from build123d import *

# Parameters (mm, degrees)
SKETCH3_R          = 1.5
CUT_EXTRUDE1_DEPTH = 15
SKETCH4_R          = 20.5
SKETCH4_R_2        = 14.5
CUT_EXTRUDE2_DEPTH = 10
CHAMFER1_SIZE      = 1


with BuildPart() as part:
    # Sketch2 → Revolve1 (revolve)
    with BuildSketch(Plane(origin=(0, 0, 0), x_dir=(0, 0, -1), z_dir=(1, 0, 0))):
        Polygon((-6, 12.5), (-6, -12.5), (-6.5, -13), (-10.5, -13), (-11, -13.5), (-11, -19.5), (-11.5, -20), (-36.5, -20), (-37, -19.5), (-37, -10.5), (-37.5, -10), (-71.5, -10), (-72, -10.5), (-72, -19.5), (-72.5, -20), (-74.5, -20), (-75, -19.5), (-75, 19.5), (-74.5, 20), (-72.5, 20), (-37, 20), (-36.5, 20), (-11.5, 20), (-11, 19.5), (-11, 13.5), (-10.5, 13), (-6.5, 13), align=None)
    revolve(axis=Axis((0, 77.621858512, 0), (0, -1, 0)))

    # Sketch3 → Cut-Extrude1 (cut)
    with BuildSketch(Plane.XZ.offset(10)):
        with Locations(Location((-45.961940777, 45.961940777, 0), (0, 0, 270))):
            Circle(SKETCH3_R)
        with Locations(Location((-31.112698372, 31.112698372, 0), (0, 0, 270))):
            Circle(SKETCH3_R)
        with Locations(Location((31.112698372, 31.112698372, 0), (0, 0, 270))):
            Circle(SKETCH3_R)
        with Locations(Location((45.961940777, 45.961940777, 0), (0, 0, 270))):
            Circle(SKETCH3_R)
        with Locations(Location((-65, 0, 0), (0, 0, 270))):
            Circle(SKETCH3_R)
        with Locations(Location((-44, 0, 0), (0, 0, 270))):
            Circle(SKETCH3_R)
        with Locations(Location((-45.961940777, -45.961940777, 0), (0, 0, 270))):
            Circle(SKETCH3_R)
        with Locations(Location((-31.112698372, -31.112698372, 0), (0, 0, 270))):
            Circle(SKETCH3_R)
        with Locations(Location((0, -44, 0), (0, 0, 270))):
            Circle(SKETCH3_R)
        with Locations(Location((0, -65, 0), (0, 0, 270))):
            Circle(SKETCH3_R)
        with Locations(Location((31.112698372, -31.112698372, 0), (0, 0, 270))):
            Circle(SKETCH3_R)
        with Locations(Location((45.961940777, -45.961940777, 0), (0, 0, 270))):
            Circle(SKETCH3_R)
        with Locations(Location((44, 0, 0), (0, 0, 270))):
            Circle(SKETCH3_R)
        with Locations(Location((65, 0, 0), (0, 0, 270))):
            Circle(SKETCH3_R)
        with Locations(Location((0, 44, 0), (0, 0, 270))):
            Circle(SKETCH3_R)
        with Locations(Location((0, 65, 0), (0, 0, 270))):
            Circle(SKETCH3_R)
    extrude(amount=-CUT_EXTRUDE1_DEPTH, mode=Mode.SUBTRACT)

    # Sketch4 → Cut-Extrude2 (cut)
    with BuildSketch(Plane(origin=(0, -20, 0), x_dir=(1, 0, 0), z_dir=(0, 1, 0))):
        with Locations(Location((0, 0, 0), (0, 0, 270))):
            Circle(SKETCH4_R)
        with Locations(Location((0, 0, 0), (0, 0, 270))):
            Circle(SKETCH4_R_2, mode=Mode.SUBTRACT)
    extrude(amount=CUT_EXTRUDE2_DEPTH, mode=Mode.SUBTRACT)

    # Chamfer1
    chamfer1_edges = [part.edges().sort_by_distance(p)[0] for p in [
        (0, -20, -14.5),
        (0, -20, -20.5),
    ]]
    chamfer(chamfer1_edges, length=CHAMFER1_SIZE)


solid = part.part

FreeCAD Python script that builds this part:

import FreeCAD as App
import Part
import Sketcher
from FreeCAD import Vector
Q = App.Units.Quantity


def edges_at(feature, points):
    """Names of the edges that pass closest to the given points."""
    edges = feature.Shape.Edges
    near = lambda p: min(range(len(edges)), key=lambda i: edges[i].distToShape(Part.Vertex(*p))[0])
    return sorted({f"Edge{near(p) + 1}" for p in points})

doc = App.newDocument("Part")
body = doc.addObject("PartDesign::Body", "Body")

sketch1 = doc.addObject("Sketcher::SketchObject", "Sketch")
body.addObject(sketch1)
sketch1.AttachmentSupport = (doc.YZ_Plane, [""])
sketch1.MapMode = "FlatFace"
sketch1.addGeometry(Part.LineSegment(Vector(-12.5, 6, 0), Vector(12.5, 6, 0)), False)
sketch1.addGeometry(Part.LineSegment(Vector(12.5, 6, 0), Vector(13, 6.5, 0)), False)
sketch1.addGeometry(Part.LineSegment(Vector(13, 6.5, 0), Vector(13, 10.5, 0)), False)
sketch1.addGeometry(Part.LineSegment(Vector(13, 10.5, 0), Vector(13.5, 11, 0)), False)
sketch1.addGeometry(Part.LineSegment(Vector(13.5, 11, 0), Vector(19.5, 11, 0)), False)
sketch1.addGeometry(Part.LineSegment(Vector(19.5, 11, 0), Vector(20, 11.5, 0)), False)
sketch1.addGeometry(Part.LineSegment(Vector(20, 11.5, 0), Vector(20, 74.5, 0)), False)
sketch1.addGeometry(Part.LineSegment(Vector(20, 74.5, 0), Vector(19.5, 75, 0)), False)
sketch1.addGeometry(Part.LineSegment(Vector(19.5, 75, 0), Vector(-19.5, 75, 0)), False)
sketch1.addGeometry(Part.LineSegment(Vector(-19.5, 75, 0), Vector(-20, 74.5, 0)), False)
sketch1.addGeometry(Part.LineSegment(Vector(-20, 74.5, 0), Vector(-20, 72.5, 0)), False)
sketch1.addGeometry(Part.LineSegment(Vector(-20, 72.5, 0), Vector(-19.5, 72, 0)), False)
sketch1.addGeometry(Part.LineSegment(Vector(-19.5, 72, 0), Vector(-10.5, 72, 0)), False)
sketch1.addGeometry(Part.LineSegment(Vector(-10.5, 72, 0), Vector(-10, 71.5, 0)), False)
sketch1.addGeometry(Part.LineSegment(Vector(-10, 71.5, 0), Vector(-10, 37.5, 0)), False)
sketch1.addGeometry(Part.LineSegment(Vector(-10, 37.5, 0), Vector(-10.5, 37, 0)), False)
sketch1.addGeometry(Part.LineSegment(Vector(-10.5, 37, 0), Vector(-19.5, 37, 0)), False)
sketch1.addGeometry(Part.LineSegment(Vector(-19.5, 37, 0), Vector(-20, 36.5, 0)), False)
sketch1.addGeometry(Part.LineSegment(Vector(-20, 36.5, 0), Vector(-20, 11.5, 0)), False)
sketch1.addGeometry(Part.LineSegment(Vector(-20, 11.5, 0), Vector(-19.5, 11, 0)), False)
sketch1.addGeometry(Part.LineSegment(Vector(-19.5, 11, 0), Vector(-13.5, 11, 0)), False)
sketch1.addGeometry(Part.LineSegment(Vector(-13.5, 11, 0), Vector(-13, 10.5, 0)), False)
sketch1.addGeometry(Part.LineSegment(Vector(-13, 10.5, 0), Vector(-13, 6.5, 0)), False)
sketch1.addGeometry(Part.LineSegment(Vector(-13, 6.5, 0), Vector(-12.5, 6, 0)), False)
sketch1.addConstraint(Sketcher.Constraint("Coincident", 0, 2, 1, 1))
sketch1.addConstraint(Sketcher.Constraint("Coincident", 1, 2, 2, 1))
sketch1.addConstraint(Sketcher.Constraint("Coincident", 2, 2, 3, 1))
sketch1.addConstraint(Sketcher.Constraint("Coincident", 3, 2, 4, 1))
sketch1.addConstraint(Sketcher.Constraint("Coincident", 4, 2, 5, 1))
sketch1.addConstraint(Sketcher.Constraint("Coincident", 5, 2, 6, 1))
sketch1.addConstraint(Sketcher.Constraint("Coincident", 6, 2, 7, 1))
sketch1.addConstraint(Sketcher.Constraint("Coincident", 7, 2, 8, 1))
sketch1.addConstraint(Sketcher.Constraint("Coincident", 8, 2, 9, 1))
sketch1.addConstraint(Sketcher.Constraint("Coincident", 9, 2, 10, 1))
sketch1.addConstraint(Sketcher.Constraint("Coincident", 10, 2, 11, 1))
sketch1.addConstraint(Sketcher.Constraint("Coincident", 11, 2, 12, 1))
sketch1.addConstraint(Sketcher.Constraint("Coincident", 12, 2, 13, 1))
sketch1.addConstraint(Sketcher.Constraint("Coincident", 13, 2, 14, 1))
sketch1.addConstraint(Sketcher.Constraint("Coincident", 14, 2, 15, 1))
sketch1.addConstraint(Sketcher.Constraint("Coincident", 15, 2, 16, 1))
sketch1.addConstraint(Sketcher.Constraint("Coincident", 16, 2, 17, 1))
sketch1.addConstraint(Sketcher.Constraint("Coincident", 17, 2, 18, 1))
sketch1.addConstraint(Sketcher.Constraint("Coincident", 18, 2, 19, 1))
sketch1.addConstraint(Sketcher.Constraint("Coincident", 19, 2, 20, 1))
sketch1.addConstraint(Sketcher.Constraint("Coincident", 20, 2, 21, 1))
sketch1.addConstraint(Sketcher.Constraint("Coincident", 21, 2, 22, 1))
sketch1.addConstraint(Sketcher.Constraint("Coincident", 22, 2, 23, 1))
sketch1.addConstraint(Sketcher.Constraint("Coincident", 23, 2, 0, 1))
sketch1.addConstraint(Sketcher.Constraint("Horizontal", 0))
sketch1.addConstraint(Sketcher.Constraint("Vertical", 2))
sketch1.addConstraint(Sketcher.Constraint("Horizontal", 4))
sketch1.addConstraint(Sketcher.Constraint("Vertical", 6))
sketch1.addConstraint(Sketcher.Constraint("Horizontal", 8))
sketch1.addConstraint(Sketcher.Constraint("Vertical", 10))
sketch1.addConstraint(Sketcher.Constraint("Horizontal", 12))
sketch1.addConstraint(Sketcher.Constraint("Vertical", 14))
sketch1.addConstraint(Sketcher.Constraint("Horizontal", 16))
sketch1.addConstraint(Sketcher.Constraint("Vertical", 18))
sketch1.addConstraint(Sketcher.Constraint("Horizontal", 20))
sketch1.addConstraint(Sketcher.Constraint("Vertical", 22))
sketch1.addConstraint(Sketcher.Constraint("Symmetric", 6, 2, 9, 2, -2))
sketch1.addConstraint(Sketcher.Constraint("Symmetric", 5, 2, 18, 2, -2))
sketch1.addConstraint(Sketcher.Constraint("Symmetric", 4, 2, 19, 2, -2))
sketch1.addConstraint(Sketcher.Constraint("Symmetric", 2, 2, 21, 2, -2))
sketch1.addConstraint(Sketcher.Constraint("Parallel", 1, 3))
sketch1.addConstraint(Sketcher.Constraint("Parallel", 3, 5))
sketch1.addConstraint(Sketcher.Constraint("Perpendicular", 5, 7))
sketch1.addConstraint(Sketcher.Constraint("Perpendicular", 7, 9))
sketch1.addConstraint(Sketcher.Constraint("Perpendicular", 9, 11))
sketch1.addConstraint(Sketcher.Constraint("Parallel", 11, 13))
sketch1.addConstraint(Sketcher.Constraint("Perpendicular", 13, 15))
sketch1.addConstraint(Sketcher.Constraint("Parallel", 15, 17))
sketch1.addConstraint(Sketcher.Constraint("Perpendicular", 17, 19))
sketch1.addConstraint(Sketcher.Constraint("Parallel", 19, 21))
sketch1.addConstraint(Sketcher.Constraint("Parallel", 21, 23))
sketch1.addConstraint(Sketcher.Constraint("Horizontal", 1, 2, 22, 2))
sketch1.addConstraint(Sketcher.Constraint("Vertical", 4, 2, 7, 2))
sketch1.addConstraint(Sketcher.Constraint("Vertical", 8, 2, 11, 2))
sketch1.addConstraint(Sketcher.Constraint("Vertical", 12, 2, 15, 2))
sketch1.addConstraint(Sketcher.Constraint("Vertical", 11, 2, 16, 2))
sketch1.addConstraint(Sketcher.Constraint("Equal", 0, 18))
sketch1.addConstraint(Sketcher.Constraint("Equal", 1, 3))
sketch1.addConstraint(Sketcher.Constraint("Equal", 3, 5))
sketch1.addConstraint(Sketcher.Constraint("Equal", 11, 13))
sketch1.addConstraint(Sketcher.Constraint("DistanceX", 0, 1, 0, 2, Q("25 mm")))
sketch1.addConstraint(Sketcher.Constraint("DistanceX", 4, 1, 4, 2, Q("6 mm")))
sketch1.addConstraint(Sketcher.Constraint("DistanceX", 8, 2, 8, 1, Q("39 mm")))
sketch1.addConstraint(Sketcher.Constraint("DistanceX", 12, 1, 12, 2, Q("9 mm")))
sketch1.addConstraint(Sketcher.Constraint("DistanceY", 2, 1, 2, 2, Q("4 mm")))
sketch1.addConstraint(Sketcher.Constraint("DistanceY", 6, 1, 6, 2, Q("63 mm")))
sketch1.addConstraint(Sketcher.Constraint("DistanceY", 10, 2, 10, 1, Q("2 mm")))
sketch1.addConstraint(Sketcher.Constraint("DistanceY", -1, 1, 0, 2, Q("6 mm")))
revolution = doc.addObject("PartDesign::Revolution", "Revolution")
body.addObject(revolution)
revolution.Profile = sketch1
revolution.ReferenceAxis = (sketch1, ["H_Axis"])
revolution.Angle = 360

sketch2 = doc.addObject("Sketcher::SketchObject", "Sketch001")
body.addObject(sketch2)
sketch2.AttachmentSupport = (doc.XZ_Plane, [""])
sketch2.MapMode = "FlatFace"
sketch2.AttachmentOffset = App.Placement(Vector(0, 0, 10), App.Rotation())
sketch2.addGeometry(Part.Circle(Vector(-46, 46, 0), Vector(0, 0, 1), 1.5), False)
sketch2.addGeometry(Part.Circle(Vector(-31.1, 31.1, 0), Vector(0, 0, 1), 1.5), False)
sketch2.addGeometry(Part.Circle(Vector(31.1, 31.1, 0), Vector(0, 0, 1), 1.5), False)
sketch2.addGeometry(Part.Circle(Vector(46, 46, 0), Vector(0, 0, 1), 1.5), False)
sketch2.addGeometry(Part.Circle(Vector(-65, 0, 0), Vector(0, 0, 1), 1.5), False)
sketch2.addGeometry(Part.Circle(Vector(-44, 0, 0), Vector(0, 0, 1), 1.5), False)
sketch2.addGeometry(Part.Circle(Vector(-46, -46, 0), Vector(0, 0, 1), 1.5), False)
sketch2.addGeometry(Part.Circle(Vector(-31.1, -31.1, 0), Vector(0, 0, 1), 1.5), False)
sketch2.addGeometry(Part.Circle(Vector(0, -44, 0), Vector(0, 0, 1), 1.5), False)
sketch2.addGeometry(Part.Circle(Vector(0, -65, 0), Vector(0, 0, 1), 1.5), False)
sketch2.addGeometry(Part.Circle(Vector(31.1, -31.1, 0), Vector(0, 0, 1), 1.5), False)
sketch2.addGeometry(Part.Circle(Vector(46, -46, 0), Vector(0, 0, 1), 1.5), False)
sketch2.addGeometry(Part.Circle(Vector(44, 0, 0), Vector(0, 0, 1), 1.5), False)
sketch2.addGeometry(Part.Circle(Vector(65, 0, 0), Vector(0, 0, 1), 1.5), False)
sketch2.addGeometry(Part.Circle(Vector(0, 44, 0), Vector(0, 0, 1), 1.5), False)
sketch2.addGeometry(Part.Circle(Vector(0, 65, 0), Vector(0, 0, 1), 1.5), False)
sketch2.addConstraint(Sketcher.Constraint("Equal", 0, 1))
sketch2.addConstraint(Sketcher.Constraint("Equal", 1, 2))
sketch2.addConstraint(Sketcher.Constraint("Equal", 2, 3))
sketch2.addConstraint(Sketcher.Constraint("Equal", 3, 4))
sketch2.addConstraint(Sketcher.Constraint("Equal", 4, 5))
sketch2.addConstraint(Sketcher.Constraint("Equal", 5, 6))
sketch2.addConstraint(Sketcher.Constraint("Equal", 6, 7))
sketch2.addConstraint(Sketcher.Constraint("Equal", 7, 8))
sketch2.addConstraint(Sketcher.Constraint("Equal", 8, 9))
sketch2.addConstraint(Sketcher.Constraint("Equal", 9, 10))
sketch2.addConstraint(Sketcher.Constraint("Equal", 10, 11))
sketch2.addConstraint(Sketcher.Constraint("Equal", 11, 12))
sketch2.addConstraint(Sketcher.Constraint("Equal", 12, 13))
sketch2.addConstraint(Sketcher.Constraint("Equal", 13, 14))
sketch2.addConstraint(Sketcher.Constraint("Equal", 14, 15))
sketch2.addConstraint(Sketcher.Constraint("Symmetric", 3, 3, 6, 3, -1, 1))
sketch2.addConstraint(Sketcher.Constraint("Symmetric", 2, 3, 7, 3, -1, 1))
sketch2.addConstraint(Sketcher.Constraint("Symmetric", 1, 3, 10, 3, -1, 1))
sketch2.addConstraint(Sketcher.Constraint("Symmetric", 0, 3, 11, 3, -1, 1))
sketch2.addConstraint(Sketcher.Constraint("Symmetric", 5, 3, 12, 3, -1, 1))
sketch2.addConstraint(Sketcher.Constraint("Symmetric", 4, 3, 13, 3, -1, 1))
sketch2.addConstraint(Sketcher.Constraint("Symmetric", 8, 3, 14, 3, -1, 1))
sketch2.addConstraint(Sketcher.Constraint("Symmetric", 9, 3, 15, 3, -1, 1))
sketch2.addConstraint(Sketcher.Constraint("Symmetric", 1, 3, 2, 3, -2))
sketch2.addConstraint(Sketcher.Constraint("Symmetric", 0, 3, 3, 3, -2))
sketch2.addConstraint(Sketcher.Constraint("PointOnObject", 4, 3, -1))
sketch2.addConstraint(Sketcher.Constraint("PointOnObject", 5, 3, -1))
sketch2.addConstraint(Sketcher.Constraint("PointOnObject", 8, 3, -2))
sketch2.addConstraint(Sketcher.Constraint("PointOnObject", 9, 3, -2))
sketch2.addConstraint(Sketcher.Constraint("Diameter", 0, Q("3 mm")))
sketch2.addConstraint(Sketcher.Constraint("DistanceX", 4, 3, -1, 1, Q("65 mm")))
sketch2.addConstraint(Sketcher.Constraint("DistanceX", 5, 3, -1, 1, Q("44 mm")))
sketch2.addConstraint(Sketcher.Constraint("DistanceY", 8, 3, -1, 1, Q("44 mm")))
sketch2.addConstraint(Sketcher.Constraint("DistanceY", 9, 3, -1, 1, Q("65 mm")))
sketch2.addConstraint(Sketcher.Constraint("DistanceX", 1, 3, -1, 1, Q("31.112698 mm")))
sketch2.addConstraint(Sketcher.Constraint("DistanceY", -1, 1, 1, 3, Q("31.112698 mm")))
sketch2.addConstraint(Sketcher.Constraint("DistanceX", 0, 3, -1, 1, Q("45.961941 mm")))
sketch2.addConstraint(Sketcher.Constraint("DistanceY", -1, 1, 0, 3, Q("45.961941 mm")))
pocket1 = doc.addObject("PartDesign::Pocket", "Pocket")
body.addObject(pocket1)
pocket1.Profile = sketch2
pocket1.Length = 15

sketch3 = doc.addObject("Sketcher::SketchObject", "Sketch002")
body.addObject(sketch3)
sketch3.AttachmentSupport = (doc.XZ_Plane, [""])
sketch3.MapMode = "FlatFace"
sketch3.AttachmentOffset = App.Placement(Vector(0, 0, 20), App.Rotation())
sketch3.addGeometry(Part.Circle(Vector(0, 0, 0), Vector(0, 0, 1), 20), False)
sketch3.addGeometry(Part.Circle(Vector(0, 0, 0), Vector(0, 0, 1), 14), False)
sketch3.addConstraint(Sketcher.Constraint("Coincident", 0, 3, -1, 1))
sketch3.addConstraint(Sketcher.Constraint("Coincident", 1, 3, -1, 1))
sketch3.addConstraint(Sketcher.Constraint("Diameter", 0, Q("41 mm")))
sketch3.addConstraint(Sketcher.Constraint("Diameter", 1, Q("29 mm")))
pocket2 = doc.addObject("PartDesign::Pocket", "Pocket001")
body.addObject(pocket2)
pocket2.Profile = sketch3
pocket2.Length = 10
doc.recompute()

chamfer = doc.addObject("PartDesign::Chamfer", "Chamfer")
body.addObject(chamfer)
chamfer.Base = (pocket2, edges_at(pocket2, [(0, -20, -14.5), (0, -20, -20.5)]))
chamfer.Size = 1

doc.recompute()
